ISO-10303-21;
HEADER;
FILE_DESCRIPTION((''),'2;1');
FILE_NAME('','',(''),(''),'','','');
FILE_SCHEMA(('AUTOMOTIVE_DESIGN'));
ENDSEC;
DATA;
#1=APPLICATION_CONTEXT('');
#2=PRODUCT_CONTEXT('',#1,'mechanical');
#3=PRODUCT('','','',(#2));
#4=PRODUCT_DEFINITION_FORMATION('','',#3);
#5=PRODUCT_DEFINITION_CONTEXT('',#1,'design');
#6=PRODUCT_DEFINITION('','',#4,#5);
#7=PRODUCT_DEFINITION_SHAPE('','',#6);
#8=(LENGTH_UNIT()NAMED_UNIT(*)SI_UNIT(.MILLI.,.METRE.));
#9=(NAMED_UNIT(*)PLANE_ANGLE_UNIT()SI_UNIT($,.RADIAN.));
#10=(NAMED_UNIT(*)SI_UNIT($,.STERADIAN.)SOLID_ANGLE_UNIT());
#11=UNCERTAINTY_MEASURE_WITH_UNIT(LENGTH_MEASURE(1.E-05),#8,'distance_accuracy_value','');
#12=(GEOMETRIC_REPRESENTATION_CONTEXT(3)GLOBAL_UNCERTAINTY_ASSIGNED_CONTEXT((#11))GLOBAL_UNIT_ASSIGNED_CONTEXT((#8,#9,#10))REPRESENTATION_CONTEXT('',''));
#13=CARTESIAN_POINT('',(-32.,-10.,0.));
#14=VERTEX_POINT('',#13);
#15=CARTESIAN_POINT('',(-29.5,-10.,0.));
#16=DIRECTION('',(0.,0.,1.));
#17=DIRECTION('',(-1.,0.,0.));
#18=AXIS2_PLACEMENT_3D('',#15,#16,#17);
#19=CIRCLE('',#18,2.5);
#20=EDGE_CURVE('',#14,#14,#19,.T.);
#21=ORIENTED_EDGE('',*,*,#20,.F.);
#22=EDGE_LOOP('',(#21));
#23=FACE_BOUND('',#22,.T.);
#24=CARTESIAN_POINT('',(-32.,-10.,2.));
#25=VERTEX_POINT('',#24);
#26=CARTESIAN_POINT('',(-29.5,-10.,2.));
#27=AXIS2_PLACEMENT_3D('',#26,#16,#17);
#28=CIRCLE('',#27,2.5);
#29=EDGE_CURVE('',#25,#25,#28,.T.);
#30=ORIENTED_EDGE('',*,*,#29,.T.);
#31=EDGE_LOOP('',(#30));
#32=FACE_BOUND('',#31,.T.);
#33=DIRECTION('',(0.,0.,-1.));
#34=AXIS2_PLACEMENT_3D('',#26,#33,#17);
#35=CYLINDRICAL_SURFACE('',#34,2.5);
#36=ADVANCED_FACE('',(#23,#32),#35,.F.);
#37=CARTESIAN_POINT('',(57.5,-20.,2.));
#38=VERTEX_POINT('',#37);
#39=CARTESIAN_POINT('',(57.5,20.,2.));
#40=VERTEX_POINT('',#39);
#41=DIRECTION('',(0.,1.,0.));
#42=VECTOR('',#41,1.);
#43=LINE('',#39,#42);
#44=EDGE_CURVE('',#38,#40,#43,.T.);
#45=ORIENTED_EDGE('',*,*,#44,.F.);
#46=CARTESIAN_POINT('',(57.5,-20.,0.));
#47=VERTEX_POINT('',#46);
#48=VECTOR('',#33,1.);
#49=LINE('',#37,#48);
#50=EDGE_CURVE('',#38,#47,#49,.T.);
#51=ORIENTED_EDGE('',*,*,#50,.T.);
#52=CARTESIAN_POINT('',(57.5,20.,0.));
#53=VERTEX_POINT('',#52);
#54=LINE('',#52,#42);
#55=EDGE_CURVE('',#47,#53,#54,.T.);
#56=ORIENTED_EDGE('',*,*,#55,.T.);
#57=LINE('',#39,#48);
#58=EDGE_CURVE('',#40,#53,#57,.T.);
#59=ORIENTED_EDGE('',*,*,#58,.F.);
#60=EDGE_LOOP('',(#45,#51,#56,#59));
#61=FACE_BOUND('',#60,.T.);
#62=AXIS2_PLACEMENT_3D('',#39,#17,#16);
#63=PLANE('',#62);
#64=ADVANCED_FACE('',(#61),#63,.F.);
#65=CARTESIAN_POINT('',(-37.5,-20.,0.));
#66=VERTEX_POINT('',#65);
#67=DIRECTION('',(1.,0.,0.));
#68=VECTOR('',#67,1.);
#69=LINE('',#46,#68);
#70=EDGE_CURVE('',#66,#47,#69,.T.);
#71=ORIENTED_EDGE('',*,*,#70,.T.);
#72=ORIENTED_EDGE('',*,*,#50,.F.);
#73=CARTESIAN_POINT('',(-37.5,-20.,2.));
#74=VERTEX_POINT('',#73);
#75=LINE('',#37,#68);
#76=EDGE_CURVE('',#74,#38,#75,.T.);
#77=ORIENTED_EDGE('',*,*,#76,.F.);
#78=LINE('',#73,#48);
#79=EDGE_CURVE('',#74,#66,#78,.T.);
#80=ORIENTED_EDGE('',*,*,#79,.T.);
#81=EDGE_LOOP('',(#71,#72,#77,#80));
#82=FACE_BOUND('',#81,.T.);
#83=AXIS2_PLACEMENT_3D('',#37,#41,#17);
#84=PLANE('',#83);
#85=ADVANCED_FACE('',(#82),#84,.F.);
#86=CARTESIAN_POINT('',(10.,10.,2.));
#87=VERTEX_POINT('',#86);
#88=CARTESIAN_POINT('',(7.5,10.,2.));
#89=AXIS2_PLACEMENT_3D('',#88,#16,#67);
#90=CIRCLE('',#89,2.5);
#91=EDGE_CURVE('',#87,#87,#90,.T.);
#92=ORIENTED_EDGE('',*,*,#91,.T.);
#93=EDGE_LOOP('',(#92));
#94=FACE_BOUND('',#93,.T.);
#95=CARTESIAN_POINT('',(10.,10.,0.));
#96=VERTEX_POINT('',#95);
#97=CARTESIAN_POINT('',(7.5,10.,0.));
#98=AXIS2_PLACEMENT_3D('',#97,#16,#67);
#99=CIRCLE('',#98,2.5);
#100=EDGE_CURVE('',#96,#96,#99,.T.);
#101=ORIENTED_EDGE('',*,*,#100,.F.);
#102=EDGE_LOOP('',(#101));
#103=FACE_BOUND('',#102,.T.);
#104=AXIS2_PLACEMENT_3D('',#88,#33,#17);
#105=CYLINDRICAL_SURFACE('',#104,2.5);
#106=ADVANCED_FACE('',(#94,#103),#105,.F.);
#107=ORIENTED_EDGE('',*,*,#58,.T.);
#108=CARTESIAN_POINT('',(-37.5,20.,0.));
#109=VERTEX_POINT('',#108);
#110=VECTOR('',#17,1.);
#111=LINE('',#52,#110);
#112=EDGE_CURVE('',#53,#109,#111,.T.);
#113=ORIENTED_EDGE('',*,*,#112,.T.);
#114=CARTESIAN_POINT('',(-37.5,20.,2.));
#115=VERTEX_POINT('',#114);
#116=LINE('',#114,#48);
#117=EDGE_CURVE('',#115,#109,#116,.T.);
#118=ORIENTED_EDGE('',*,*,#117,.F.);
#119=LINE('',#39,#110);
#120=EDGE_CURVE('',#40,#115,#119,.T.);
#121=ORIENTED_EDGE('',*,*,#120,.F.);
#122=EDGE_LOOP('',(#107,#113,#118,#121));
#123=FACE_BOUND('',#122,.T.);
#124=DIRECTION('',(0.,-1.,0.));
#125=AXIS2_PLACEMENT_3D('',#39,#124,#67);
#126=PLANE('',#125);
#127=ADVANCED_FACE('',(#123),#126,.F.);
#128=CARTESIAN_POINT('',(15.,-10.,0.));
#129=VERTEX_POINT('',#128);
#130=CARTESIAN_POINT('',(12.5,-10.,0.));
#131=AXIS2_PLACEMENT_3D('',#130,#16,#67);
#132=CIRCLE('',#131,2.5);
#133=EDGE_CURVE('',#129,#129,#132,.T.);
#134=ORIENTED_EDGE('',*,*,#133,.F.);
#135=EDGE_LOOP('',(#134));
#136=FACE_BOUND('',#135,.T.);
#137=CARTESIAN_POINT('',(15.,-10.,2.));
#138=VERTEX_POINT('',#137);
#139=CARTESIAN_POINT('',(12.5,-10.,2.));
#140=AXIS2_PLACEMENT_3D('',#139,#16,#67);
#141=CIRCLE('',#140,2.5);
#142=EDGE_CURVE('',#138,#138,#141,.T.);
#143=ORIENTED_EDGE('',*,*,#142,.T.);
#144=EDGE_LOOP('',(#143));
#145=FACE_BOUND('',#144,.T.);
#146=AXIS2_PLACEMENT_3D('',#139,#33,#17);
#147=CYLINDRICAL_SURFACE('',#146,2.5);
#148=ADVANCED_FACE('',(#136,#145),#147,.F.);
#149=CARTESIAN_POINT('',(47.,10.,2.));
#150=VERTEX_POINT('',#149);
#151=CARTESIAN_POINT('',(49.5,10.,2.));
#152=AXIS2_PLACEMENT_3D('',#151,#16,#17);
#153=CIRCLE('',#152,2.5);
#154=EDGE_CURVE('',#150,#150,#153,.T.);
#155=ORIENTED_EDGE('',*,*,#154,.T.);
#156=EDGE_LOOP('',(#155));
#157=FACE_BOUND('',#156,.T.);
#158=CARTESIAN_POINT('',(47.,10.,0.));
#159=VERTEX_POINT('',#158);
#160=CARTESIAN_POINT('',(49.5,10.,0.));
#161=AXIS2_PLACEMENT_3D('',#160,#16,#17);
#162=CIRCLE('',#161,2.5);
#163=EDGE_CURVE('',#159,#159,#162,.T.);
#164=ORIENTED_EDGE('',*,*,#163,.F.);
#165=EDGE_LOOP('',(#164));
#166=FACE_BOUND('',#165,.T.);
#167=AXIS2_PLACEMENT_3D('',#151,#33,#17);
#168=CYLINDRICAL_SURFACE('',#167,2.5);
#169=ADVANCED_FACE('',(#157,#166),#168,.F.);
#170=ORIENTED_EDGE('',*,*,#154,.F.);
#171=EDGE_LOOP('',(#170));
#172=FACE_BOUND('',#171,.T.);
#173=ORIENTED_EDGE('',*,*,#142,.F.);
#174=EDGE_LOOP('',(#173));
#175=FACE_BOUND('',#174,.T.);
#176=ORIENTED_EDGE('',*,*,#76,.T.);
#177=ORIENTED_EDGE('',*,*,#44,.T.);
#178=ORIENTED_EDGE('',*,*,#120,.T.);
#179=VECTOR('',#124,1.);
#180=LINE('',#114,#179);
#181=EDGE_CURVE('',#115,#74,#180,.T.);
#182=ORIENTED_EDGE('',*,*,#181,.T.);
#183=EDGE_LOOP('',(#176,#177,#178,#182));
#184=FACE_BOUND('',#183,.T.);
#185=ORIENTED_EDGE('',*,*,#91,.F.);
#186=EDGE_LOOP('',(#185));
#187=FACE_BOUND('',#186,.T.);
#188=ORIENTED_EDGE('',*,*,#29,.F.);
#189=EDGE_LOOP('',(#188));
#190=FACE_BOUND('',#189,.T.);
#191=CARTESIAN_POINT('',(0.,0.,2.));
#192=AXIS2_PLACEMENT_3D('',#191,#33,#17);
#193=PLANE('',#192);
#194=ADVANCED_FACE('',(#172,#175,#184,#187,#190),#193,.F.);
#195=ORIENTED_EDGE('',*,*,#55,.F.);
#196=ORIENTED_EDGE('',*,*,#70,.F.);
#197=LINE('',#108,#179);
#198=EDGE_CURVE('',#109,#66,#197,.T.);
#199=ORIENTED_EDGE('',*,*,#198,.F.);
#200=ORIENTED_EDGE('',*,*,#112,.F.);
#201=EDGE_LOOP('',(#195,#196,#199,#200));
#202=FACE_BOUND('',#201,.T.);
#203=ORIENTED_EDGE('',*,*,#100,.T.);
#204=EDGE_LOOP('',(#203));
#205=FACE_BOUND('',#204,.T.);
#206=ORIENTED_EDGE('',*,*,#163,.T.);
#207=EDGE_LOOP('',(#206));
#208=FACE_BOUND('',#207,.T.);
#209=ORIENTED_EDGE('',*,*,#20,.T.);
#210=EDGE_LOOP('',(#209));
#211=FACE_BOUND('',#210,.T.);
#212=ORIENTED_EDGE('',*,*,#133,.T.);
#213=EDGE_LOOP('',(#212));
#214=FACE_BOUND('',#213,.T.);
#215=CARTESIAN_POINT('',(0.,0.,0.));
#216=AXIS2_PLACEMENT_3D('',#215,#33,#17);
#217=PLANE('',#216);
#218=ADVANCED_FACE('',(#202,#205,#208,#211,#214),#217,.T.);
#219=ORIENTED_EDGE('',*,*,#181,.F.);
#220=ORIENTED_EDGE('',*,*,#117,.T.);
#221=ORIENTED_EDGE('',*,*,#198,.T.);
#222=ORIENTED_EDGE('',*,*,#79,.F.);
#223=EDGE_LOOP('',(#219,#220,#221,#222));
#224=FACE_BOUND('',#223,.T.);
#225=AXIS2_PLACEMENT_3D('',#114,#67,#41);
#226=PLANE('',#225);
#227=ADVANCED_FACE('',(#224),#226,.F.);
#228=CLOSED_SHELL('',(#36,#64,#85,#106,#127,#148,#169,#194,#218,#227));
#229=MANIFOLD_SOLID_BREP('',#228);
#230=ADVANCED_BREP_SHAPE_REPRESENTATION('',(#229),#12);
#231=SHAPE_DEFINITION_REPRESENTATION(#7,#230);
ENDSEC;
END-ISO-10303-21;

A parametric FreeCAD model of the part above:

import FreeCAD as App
import Part
import Sketcher
from FreeCAD import Vector


def add_polygon(sketch, points):
    """Adds a closed chain of lines whose ends are joined by coincident constraints."""
    first, n = sketch.GeometryCount, len(points)
    for a, b in zip(points, points[1:] + points[:1]):
        sketch.addGeometry(Part.LineSegment(App.Vector(*a, 0), App.Vector(*b, 0)), False)
    for i in range(n):
        sketch.addConstraint(Sketcher.Constraint("Coincident", first + i, 2, first + (i + 1) % n, 1))

doc = App.newDocument("Part")
params = doc.addObject("Spreadsheet::Sheet", "Params")
for row, (alias, value) in enumerate([
    ("sketch1_diameter", "5 mm"),
    ("sketch1_width", "95 mm"),
    ("sketch1_height", "40 mm"),
    ("pad1_length", "2 mm"),
], start=1):
    params.set(f"A{row}", alias)
    params.set(f"B{row}", "=" + value)
    params.setAlias(f"B{row}", alias)

body = doc.addObject("PartDesign::Body", "Body")

# Sketch on XY plane
sketch1 = body.newObject("Sketcher::SketchObject", "Sketch")
sketch1.AttachmentSupport = (doc.getObject("XY_Plane"), [""])
sketch1.MapMode = "FlatFace"
add_polygon(sketch1, [(-37.5, 20), (-37.5, -20), (57.5, -20), (57.5, 20)])  # lines 0-3
sketch1.addGeometry(Part.Circle(Vector(-29.5, -10, 0), Vector(0, 0, 1), 2.5), False)  # 4
sketch1.addGeometry(Part.Circle(Vector(12.5, -10, 0), Vector(0, 0, 1), 2.5), False)  # 5
sketch1.addGeometry(Part.Circle(Vector(7.5, 10, 0), Vector(0, 0, 1), 2.5), False)  # 6
sketch1.addGeometry(Part.Circle(Vector(49.5, 10, 0), Vector(0, 0, 1), 2.5), False)  # 7
sketch1.addConstraint([
    Sketcher.Constraint("Vertical", 0),
    Sketcher.Constraint("Horizontal", 1),
    Sketcher.Constraint("Vertical", 2),
    Sketcher.Constraint("Horizontal", 3),
    Sketcher.Constraint("Equal", 4, 5),
    Sketcher.Constraint("Equal", 5, 6),
    Sketcher.Constraint("Equal", 6, 7),
    Sketcher.Constraint("Horizontal", 4, 3, 5, 3),
    Sketcher.Constraint("Horizontal", 6, 3, 7, 3),
    Sketcher.Constraint("Diameter", 4, 5.0),
    Sketcher.Constraint("DistanceX", 1, 1, 1, 2, 95.0),
    Sketcher.Constraint("DistanceY", 0, 2, 0, 1, 40.0),
    Sketcher.Constraint("DistanceY", 4, 3, -1, 1, 10.0),
    Sketcher.Constraint("DistanceY", -1, 1, 6, 3, 10.0),
    Sketcher.Constraint("DistanceY", 0, 2, -1, 1, 20.0),
    Sketcher.Constraint("DistanceX", 4, 3, 5, 3, 42.0),
    Sketcher.Constraint("DistanceX", 6, 3, 5, 3, 5.0),
    Sketcher.Constraint("DistanceX", 6, 3, 7, 3, 42.0),
    Sketcher.Constraint("DistanceX", 0, 2, 4, 3, 8.0),
    Sketcher.Constraint("DistanceX", 4, 3, -1, 1, 29.5),
])
sketch1.setExpression("Constraints[13]", "Params.sketch1_diameter")
sketch1.setExpression("Constraints[14]", "Params.sketch1_width")
sketch1.setExpression("Constraints[15]", "Params.sketch1_height")
pad1 = body.newObject("PartDesign::Pad", "Pad")
pad1.Profile = sketch1
pad1.setExpression("Length", "Params.pad1_length")

doc.recompute()
